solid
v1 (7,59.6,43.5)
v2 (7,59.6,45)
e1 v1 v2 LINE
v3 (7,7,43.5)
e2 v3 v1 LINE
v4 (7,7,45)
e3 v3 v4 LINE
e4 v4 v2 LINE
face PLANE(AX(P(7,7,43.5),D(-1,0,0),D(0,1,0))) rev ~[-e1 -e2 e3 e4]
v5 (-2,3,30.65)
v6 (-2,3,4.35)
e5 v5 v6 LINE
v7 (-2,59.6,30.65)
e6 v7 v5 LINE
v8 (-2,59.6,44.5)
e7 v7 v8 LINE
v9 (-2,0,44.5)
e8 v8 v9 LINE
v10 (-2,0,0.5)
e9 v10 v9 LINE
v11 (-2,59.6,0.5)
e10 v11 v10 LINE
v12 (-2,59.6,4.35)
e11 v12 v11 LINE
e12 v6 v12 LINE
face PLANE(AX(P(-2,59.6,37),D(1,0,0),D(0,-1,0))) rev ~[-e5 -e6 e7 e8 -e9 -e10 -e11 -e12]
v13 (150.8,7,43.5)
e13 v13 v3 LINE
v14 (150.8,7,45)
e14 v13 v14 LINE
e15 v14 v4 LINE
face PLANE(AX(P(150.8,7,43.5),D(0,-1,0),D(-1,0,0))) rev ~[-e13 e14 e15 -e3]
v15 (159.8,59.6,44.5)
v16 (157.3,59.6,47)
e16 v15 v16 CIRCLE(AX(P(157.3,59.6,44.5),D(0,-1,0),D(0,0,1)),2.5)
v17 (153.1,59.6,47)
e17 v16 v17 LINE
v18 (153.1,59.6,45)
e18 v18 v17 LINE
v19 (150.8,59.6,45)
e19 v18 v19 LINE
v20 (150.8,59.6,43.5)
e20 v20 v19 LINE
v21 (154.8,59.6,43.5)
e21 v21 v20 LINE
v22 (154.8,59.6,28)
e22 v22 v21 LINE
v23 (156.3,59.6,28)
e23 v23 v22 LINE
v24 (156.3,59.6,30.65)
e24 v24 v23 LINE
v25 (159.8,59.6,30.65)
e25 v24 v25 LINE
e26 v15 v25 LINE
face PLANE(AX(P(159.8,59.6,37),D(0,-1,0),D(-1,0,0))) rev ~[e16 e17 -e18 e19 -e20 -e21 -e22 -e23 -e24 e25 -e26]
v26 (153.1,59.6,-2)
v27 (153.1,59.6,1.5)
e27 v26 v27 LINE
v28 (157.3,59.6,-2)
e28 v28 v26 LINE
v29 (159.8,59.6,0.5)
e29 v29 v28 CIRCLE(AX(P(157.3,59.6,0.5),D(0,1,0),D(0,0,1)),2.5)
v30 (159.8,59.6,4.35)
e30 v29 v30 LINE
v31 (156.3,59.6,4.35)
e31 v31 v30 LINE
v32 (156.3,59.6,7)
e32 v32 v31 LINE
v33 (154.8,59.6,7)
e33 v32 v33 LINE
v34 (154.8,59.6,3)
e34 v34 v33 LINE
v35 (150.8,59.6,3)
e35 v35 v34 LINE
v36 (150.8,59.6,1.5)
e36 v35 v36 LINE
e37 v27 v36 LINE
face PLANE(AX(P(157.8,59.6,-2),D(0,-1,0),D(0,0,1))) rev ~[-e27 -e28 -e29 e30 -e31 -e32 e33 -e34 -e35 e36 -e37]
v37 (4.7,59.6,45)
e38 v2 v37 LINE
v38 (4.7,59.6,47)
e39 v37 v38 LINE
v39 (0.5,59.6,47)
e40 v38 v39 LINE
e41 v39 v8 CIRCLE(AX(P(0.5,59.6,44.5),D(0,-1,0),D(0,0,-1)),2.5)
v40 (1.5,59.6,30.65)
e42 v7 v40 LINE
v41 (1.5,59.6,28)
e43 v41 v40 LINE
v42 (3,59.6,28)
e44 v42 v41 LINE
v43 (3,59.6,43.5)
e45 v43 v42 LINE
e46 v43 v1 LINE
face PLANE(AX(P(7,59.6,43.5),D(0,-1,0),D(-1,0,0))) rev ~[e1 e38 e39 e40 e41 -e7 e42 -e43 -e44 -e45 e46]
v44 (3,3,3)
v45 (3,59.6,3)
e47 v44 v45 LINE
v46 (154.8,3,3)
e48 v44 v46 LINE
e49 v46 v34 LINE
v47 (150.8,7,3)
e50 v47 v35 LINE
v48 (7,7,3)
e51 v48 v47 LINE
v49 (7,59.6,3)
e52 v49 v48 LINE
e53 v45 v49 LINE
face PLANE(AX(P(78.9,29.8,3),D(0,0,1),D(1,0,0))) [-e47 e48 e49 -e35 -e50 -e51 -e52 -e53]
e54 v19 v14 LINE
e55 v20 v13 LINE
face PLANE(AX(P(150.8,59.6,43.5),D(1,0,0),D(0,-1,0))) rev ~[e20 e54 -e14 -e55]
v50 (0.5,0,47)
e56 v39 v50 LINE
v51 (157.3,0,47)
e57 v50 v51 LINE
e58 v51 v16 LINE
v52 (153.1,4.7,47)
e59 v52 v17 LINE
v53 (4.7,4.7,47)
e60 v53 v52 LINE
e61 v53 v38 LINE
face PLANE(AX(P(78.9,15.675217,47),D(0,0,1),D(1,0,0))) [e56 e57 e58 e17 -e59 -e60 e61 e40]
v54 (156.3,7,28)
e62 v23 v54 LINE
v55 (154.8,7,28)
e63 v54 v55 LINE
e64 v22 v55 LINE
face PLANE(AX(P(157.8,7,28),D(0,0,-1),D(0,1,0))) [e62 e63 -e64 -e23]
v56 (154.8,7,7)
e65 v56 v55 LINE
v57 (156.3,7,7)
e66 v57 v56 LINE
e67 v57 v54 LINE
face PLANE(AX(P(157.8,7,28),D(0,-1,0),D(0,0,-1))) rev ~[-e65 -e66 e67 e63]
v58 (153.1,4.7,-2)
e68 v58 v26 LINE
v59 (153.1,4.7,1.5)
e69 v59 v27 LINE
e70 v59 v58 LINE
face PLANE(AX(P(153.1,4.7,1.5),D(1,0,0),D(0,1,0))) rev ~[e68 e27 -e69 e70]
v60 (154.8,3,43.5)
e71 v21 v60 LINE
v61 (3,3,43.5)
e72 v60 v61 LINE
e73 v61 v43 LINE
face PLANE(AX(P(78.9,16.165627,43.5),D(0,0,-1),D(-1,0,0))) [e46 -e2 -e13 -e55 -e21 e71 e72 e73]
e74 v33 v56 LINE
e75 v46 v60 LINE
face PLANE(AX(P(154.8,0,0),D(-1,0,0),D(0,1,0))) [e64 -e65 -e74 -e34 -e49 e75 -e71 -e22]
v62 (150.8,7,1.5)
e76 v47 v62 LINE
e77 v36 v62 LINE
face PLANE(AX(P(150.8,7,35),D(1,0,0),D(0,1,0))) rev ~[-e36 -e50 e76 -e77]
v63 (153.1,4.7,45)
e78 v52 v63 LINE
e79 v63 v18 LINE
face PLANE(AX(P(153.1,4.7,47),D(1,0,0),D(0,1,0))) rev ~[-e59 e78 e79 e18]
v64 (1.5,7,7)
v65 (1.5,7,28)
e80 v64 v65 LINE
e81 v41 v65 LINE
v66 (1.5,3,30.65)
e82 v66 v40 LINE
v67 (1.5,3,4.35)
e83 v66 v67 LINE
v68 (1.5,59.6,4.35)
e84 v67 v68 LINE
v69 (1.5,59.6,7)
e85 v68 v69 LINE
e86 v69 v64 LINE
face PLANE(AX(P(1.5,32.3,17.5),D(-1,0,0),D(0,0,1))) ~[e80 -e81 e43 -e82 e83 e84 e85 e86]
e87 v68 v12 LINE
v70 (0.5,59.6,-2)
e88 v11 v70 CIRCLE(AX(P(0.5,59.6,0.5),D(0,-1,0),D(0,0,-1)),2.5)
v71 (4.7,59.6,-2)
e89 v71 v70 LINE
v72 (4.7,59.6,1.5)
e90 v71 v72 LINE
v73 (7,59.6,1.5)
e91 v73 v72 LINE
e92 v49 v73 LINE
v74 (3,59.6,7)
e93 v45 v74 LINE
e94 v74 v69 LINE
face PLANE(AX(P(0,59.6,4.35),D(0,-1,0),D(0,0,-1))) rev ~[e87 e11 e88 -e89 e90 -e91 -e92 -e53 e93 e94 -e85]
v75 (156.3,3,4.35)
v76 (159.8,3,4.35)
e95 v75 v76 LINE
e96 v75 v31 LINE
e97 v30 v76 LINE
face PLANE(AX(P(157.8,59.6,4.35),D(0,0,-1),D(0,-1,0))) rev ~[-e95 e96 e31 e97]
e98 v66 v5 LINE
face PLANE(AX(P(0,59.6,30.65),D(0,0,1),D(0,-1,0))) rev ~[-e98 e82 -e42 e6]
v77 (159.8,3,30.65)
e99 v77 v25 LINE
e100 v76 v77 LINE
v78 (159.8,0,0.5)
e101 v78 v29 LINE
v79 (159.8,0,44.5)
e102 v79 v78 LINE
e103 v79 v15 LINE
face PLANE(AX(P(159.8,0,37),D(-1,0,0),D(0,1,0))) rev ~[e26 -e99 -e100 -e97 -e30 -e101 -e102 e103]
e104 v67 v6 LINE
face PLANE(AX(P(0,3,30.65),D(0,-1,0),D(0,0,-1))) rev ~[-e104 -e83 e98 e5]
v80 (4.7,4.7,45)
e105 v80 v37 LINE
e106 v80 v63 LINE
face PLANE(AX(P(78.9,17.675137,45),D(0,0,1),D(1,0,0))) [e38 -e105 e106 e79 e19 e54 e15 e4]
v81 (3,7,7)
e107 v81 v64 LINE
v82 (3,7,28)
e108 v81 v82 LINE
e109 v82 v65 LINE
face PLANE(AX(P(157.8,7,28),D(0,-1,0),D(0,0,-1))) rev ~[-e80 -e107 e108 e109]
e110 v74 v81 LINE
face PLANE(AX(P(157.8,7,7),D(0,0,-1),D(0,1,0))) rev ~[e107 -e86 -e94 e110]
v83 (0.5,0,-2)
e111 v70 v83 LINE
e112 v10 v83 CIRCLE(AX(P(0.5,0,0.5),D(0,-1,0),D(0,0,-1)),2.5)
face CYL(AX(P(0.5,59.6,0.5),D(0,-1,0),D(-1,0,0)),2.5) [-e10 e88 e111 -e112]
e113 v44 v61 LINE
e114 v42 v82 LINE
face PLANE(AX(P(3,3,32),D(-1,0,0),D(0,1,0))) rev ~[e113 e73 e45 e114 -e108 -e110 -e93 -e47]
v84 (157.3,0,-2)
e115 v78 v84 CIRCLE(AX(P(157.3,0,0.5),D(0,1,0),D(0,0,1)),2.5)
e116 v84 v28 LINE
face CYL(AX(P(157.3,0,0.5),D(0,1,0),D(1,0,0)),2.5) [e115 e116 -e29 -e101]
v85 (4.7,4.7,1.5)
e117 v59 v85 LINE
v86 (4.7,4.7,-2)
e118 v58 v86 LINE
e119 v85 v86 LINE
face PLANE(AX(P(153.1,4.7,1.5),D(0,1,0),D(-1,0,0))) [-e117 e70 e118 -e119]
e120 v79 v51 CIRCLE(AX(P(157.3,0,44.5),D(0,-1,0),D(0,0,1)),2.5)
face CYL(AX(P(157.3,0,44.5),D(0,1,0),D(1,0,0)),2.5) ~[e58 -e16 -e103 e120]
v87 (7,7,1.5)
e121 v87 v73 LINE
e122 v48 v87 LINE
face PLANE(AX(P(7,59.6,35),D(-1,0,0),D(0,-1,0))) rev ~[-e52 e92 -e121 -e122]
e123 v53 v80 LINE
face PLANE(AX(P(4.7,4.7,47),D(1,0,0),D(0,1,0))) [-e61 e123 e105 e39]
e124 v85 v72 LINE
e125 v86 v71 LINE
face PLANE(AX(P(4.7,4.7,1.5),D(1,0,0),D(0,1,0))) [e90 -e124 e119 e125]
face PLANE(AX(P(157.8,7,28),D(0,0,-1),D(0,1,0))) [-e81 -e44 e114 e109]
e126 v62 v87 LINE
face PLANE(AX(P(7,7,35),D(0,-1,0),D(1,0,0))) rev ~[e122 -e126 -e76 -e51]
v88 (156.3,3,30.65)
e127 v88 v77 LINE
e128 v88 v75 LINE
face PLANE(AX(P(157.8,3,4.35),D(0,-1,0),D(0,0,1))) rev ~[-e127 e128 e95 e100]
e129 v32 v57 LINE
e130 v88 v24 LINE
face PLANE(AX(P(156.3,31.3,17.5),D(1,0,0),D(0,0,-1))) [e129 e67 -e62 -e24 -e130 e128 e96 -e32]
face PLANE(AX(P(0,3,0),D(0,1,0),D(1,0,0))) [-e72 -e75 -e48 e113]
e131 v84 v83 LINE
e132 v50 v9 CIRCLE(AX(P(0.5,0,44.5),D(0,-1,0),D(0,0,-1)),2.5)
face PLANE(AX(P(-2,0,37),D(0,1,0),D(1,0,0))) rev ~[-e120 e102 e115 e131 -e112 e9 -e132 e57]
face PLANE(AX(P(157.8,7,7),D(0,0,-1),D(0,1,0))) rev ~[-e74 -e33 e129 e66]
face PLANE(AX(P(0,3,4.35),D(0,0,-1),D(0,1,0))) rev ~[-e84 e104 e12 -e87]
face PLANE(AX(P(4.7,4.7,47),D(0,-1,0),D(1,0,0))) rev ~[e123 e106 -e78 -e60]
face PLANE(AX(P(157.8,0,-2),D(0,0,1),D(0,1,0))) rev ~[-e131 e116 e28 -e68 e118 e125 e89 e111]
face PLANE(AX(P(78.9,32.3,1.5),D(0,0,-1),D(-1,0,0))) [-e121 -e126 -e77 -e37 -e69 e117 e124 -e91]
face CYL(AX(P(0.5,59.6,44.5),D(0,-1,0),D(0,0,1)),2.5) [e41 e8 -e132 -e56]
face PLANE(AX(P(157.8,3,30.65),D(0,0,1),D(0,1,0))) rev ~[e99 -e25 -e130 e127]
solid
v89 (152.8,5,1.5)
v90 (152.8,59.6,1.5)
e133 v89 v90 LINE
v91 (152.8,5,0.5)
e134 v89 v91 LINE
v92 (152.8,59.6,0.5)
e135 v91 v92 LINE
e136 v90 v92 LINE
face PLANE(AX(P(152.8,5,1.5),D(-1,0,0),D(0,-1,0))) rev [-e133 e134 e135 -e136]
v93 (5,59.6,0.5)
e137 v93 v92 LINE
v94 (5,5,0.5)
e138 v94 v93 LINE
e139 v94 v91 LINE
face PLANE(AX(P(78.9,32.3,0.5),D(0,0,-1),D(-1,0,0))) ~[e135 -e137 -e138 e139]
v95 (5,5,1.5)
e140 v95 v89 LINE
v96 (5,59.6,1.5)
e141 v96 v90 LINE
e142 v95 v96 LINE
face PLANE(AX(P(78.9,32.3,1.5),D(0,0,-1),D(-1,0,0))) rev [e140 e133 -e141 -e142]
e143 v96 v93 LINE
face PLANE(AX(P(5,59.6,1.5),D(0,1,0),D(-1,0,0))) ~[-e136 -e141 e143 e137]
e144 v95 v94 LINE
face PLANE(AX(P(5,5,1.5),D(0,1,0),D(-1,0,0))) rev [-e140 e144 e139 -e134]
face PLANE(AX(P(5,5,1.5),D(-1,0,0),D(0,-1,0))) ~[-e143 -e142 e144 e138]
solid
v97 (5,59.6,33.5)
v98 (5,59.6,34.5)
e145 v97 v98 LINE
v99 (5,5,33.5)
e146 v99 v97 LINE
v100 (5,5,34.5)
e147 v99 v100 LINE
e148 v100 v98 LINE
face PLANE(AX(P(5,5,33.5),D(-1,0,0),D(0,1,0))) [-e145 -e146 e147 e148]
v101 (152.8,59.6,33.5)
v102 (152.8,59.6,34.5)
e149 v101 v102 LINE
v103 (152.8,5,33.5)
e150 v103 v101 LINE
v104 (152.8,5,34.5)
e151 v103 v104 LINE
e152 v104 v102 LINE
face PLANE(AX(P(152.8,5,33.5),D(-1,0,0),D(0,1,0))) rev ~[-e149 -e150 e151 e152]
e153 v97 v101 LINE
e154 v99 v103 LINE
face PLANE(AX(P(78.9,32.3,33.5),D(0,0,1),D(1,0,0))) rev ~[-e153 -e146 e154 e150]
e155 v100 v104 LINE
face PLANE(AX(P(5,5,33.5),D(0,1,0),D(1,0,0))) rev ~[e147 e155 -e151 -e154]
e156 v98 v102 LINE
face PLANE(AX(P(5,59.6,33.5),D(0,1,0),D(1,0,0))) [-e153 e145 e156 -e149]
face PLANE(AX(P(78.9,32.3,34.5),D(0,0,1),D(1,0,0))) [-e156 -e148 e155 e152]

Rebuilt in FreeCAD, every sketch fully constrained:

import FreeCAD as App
import Part
import Sketcher
from FreeCAD import Vector
Q = App.Units.Quantity


def edges_at(feature, points):
    """Names of the edges that pass closest to the given points."""
    edges = feature.Shape.Edges
    near = lambda p: min(range(len(edges)), key=lambda i: edges[i].distToShape(Part.Vertex(*p))[0])
    return sorted({f"Edge{near(p) + 1}" for p in points})


def faces_at(feature, points):
    """Names of the faces that lie closest to the given points."""
    faces = feature.Shape.Faces
    near = lambda p: min(range(len(faces)), key=lambda i: faces[i].distToShape(Part.Vertex(*p))[0])
    return sorted({f"Face{near(p) + 1}" for p in points})


def add_polygon(sketch, points):
    """Adds a closed chain of lines whose ends are joined by coincident constraints."""
    first, n = sketch.GeometryCount, len(points)
    for a, b in zip(points, points[1:] + points[:1]):
        sketch.addGeometry(Part.LineSegment(App.Vector(*a, 0), App.Vector(*b, 0)), False)
    for i in range(n):
        sketch.addConstraint(Sketcher.Constraint("Coincident", first + i, 2, first + (i + 1) % n, 1))

doc = App.newDocument("Part")
body = doc.addObject("PartDesign::Body", "Body")

sketch1 = body.newObject("Sketcher::SketchObject", "Sketch")
sketch1.AttachmentSupport = (doc.getObject("XY_Plane"), [""])
sketch1.MapMode = "FlatFace"
add_polygon(sketch1, [(0, 60), (0, 0), (158, 0), (158, 60)])
sketch1.addConstraint([
    Sketcher.Constraint("Vertical", 0),
    Sketcher.Constraint("Horizontal", 1),
    Sketcher.Constraint("Vertical", 2),
    Sketcher.Constraint("Horizontal", 3),
    Sketcher.Constraint("Coincident", 0, 2, -1, 1),
    Sketcher.Constraint("DistanceX", 1, 1, 1, 2, Q("157.8 mm")),
    Sketcher.Constraint("DistanceY", 0, 2, 0, 1, Q("59.6 mm")),
])
pad1 = body.newObject("PartDesign::Pad", "Pad")
pad1.Profile = sketch1
pad1.Length = 35
doc.recompute()

thickness = body.newObject("PartDesign::Thickness", "Thickness")
thickness.Base = (pad1, faces_at(pad1, [(78.9, 59.6, 17.5)]))
thickness.Value = 3
thickness.Reversed = True
thickness.Join = "Intersection"

sketch2 = body.newObject("Sketcher::SketchObject", "Sketch001")
sketch2.AttachmentSupport = (doc.getObject("XY_Plane"), [""])
sketch2.MapMode = "FlatFace"
sketch2.AttachmentOffset = App.Placement(Vector(0, 0, 35), App.Rotation())
add_polygon(sketch2, [(7, 7), (151, 7), (151, 60), (7, 60)])
sketch2.addConstraint([
    Sketcher.Constraint("Horizontal", 0),
    Sketcher.Constraint("Vertical", 1),
    Sketcher.Constraint("Horizontal", 2),
    Sketcher.Constraint("Vertical", 3),
    Sketcher.Constraint("DistanceX", 0, 1, 0, 2, Q("143.8 mm")),
    Sketcher.Constraint("DistanceY", 1, 1, 1, 2, Q("52.6 mm")),
    Sketcher.Constraint("DistanceY", -1, 1, 0, 2, Q("7 mm")),
    Sketcher.Constraint("DistanceX", -1, 1, 2, 2, Q("7 mm")),
])
pocket1 = body.newObject("PartDesign::Pocket", "Pocket")
pocket1.Profile = sketch2
pocket1.Type = "ThroughAll"

sketch3 = body.newObject("Sketcher::SketchObject", "Sketch002")
sketch3.AttachmentSupport = (doc.getObject("XY_Plane"), [""])
sketch3.MapMode = "FlatFace"
sketch3.AttachmentOffset = App.Placement(Vector(0, 0, 35), App.Rotation())
add_polygon(sketch3, [(5, 60), (5, 5), (153, 5), (153, 60)])
sketch3.addConstraint([
    Sketcher.Constraint("Vertical", 0),
    Sketcher.Constraint("Horizontal", 1),
    Sketcher.Constraint("Vertical", 2),
    Sketcher.Constraint("Horizontal", 3),
    Sketcher.Constraint("DistanceX", 1, 1, 1, 2, Q("147.8 mm")),
    Sketcher.Constraint("DistanceY", 0, 2, 0, 1, Q("54.6 mm")),
    Sketcher.Constraint("DistanceX", -1, 1, 0, 2, Q("5 mm")),
    Sketcher.Constraint("DistanceY", -1, 1, 0, 2, Q("5 mm")),
])
pocket2 = body.newObject("PartDesign::Pocket", "Pocket001")
pocket2.Profile = sketch3
pocket2.Length = 1.5
doc.recompute()

datumplane = body.newObject("PartDesign::Plane", "DatumPlane")
datumplane.AttachmentSupport = (doc.getObject("XY_Plane"), [""])
datumplane.MapMode = "FlatFace"
datumplane.AttachmentOffset = App.Placement(Vector(0, 0, 17.5), App.Rotation())
mirrored = body.newObject("PartDesign::Mirrored", "Mirrored")
mirrored.Originals = [pocket2]
mirrored.MirrorPlane = (datumplane, [""])
body.Tip = mirrored

sketch4 = body.newObject("Sketcher::SketchObject", "Sketch003")
sketch4.AttachmentSupport = (doc.getObject("YZ_Plane"), [""])
sketch4.MapMode = "FlatFace"
sketch4.AttachmentOffset = App.Placement(Vector(0, 0, 157.8), App.Rotation())
add_polygon(sketch4, [(60, 28), (7, 28), (7, 7), (60, 7)])
sketch4.addConstraint([
    Sketcher.Constraint("Horizontal", 0),
    Sketcher.Constraint("Vertical", 1),
    Sketcher.Constraint("Horizontal", 2),
    Sketcher.Constraint("Vertical", 3),
    Sketcher.Constraint("DistanceY", 1, 2, 1, 1, Q("21 mm")),
    Sketcher.Constraint("DistanceX", 0, 2, 0, 1, Q("52.6 mm")),
    Sketcher.Constraint("DistanceX", -1, 1, 0, 2, Q("7 mm")),
    Sketcher.Constraint("DistanceY", -1, 1, 0, 2, Q("28 mm")),
])
pocket3 = body.newObject("PartDesign::Pocket", "Pocket002")
pocket3.Profile = sketch4
pocket3.Type = "ThroughAll"

sketch5 = body.newObject("Sketcher::SketchObject", "Sketch004")
sketch5.AttachmentSupport = (doc.getObject("YZ_Plane"), [""])
sketch5.MapMode = "FlatFace"
sketch5.AttachmentOffset = App.Placement(Vector(0, 0, 157.8), App.Rotation())
add_polygon(sketch5, [(60, 30), (5, 30), (5, 5), (60, 5)])
sketch5.addConstraint([
    Sketcher.Constraint("Horizontal", 0),
    Sketcher.Constraint("Vertical", 1),
    Sketcher.Constraint("Horizontal", 2),
    Sketcher.Constraint("Vertical", 3),
    Sketcher.Constraint("DistanceY", 1, 2, 1, 1, Q("25 mm")),
    Sketcher.Constraint("DistanceX", 0, 2, 0, 1, Q("54.6 mm")),
    Sketcher.Constraint("DistanceX", -1, 1, 0, 2, Q("5 mm")),
    Sketcher.Constraint("DistanceY", -1, 1, 0, 2, Q("30 mm")),
])
pocket4 = body.newObject("PartDesign::Pocket", "Pocket003")
pocket4.Profile = sketch5
pocket4.Length = 1.5
doc.recompute()

datumplane2 = body.newObject("PartDesign::Plane", "DatumPlane001")
datumplane2.AttachmentSupport = (doc.getObject("YZ_Plane"), [""])
datumplane2.MapMode = "FlatFace"
datumplane2.AttachmentOffset = App.Placement(Vector(0, 0, 78.9), App.Rotation())
mirrored2 = body.newObject("PartDesign::Mirrored", "Mirrored001")
mirrored2.Originals = [pocket4]
mirrored2.MirrorPlane = (datumplane2, [""])
body.Tip = mirrored2

sketch6 = body.newObject("Sketcher::SketchObject", "Sketch005")
sketch6.AttachmentSupport = (doc.getObject("YZ_Plane"), [""])
sketch6.MapMode = "FlatFace"
sketch6.AttachmentOffset = App.Placement(Vector(0, 0, 157.8), App.Rotation())
add_polygon(sketch6, [(60, 30), (3, 30), (3, 5), (60, 5)])
sketch6.addConstraint([
    Sketcher.Constraint("Horizontal", 0),
    Sketcher.Constraint("Vertical", 1),
    Sketcher.Constraint("Horizontal", 2),
    Sketcher.Constraint("Vertical", 3),
    Sketcher.Constraint("DistanceX", 0, 2, 0, 1, Q("56.6 mm")),
    Sketcher.Constraint("DistanceY", 1, 2, 1, 1, Q("25.3 mm")),
    Sketcher.Constraint("DistanceX", -1, 1, 0, 2, Q("3 mm")),
    Sketcher.Constraint("DistanceY", -1, 1, 0, 2, Q("30.15 mm")),
])
pocket5 = body.newObject("PartDesign::Pocket", "Pocket004")
pocket5.Profile = sketch6
pocket5.Length = 1.5
doc.recompute()

datumplane3 = body.newObject("PartDesign::Plane", "DatumPlane002")
datumplane3.AttachmentSupport = (doc.getObject("YZ_Plane"), [""])
datumplane3.MapMode = "FlatFace"
datumplane3.AttachmentOffset = App.Placement(Vector(0, 0, 78.9), App.Rotation())
mirrored3 = body.newObject("PartDesign::Mirrored", "Mirrored002")
mirrored3.Originals = [pocket5]
mirrored3.MirrorPlane = (datumplane3, [""])
body.Tip = mirrored3

sketch7 = body.newObject("Sketcher::SketchObject", "Sketch006")
sketch7.AttachmentSupport = (doc.getObject("YZ_Plane"), [""])
sketch7.MapMode = "FlatFace"
sketch7.AttachmentOffset = App.Placement(Vector(0, 0, 157.8), App.Rotation())
add_polygon(sketch7, [(60, 31), (3, 31), (3, 4), (60, 4)])
sketch7.addConstraint([
    Sketcher.Constraint("Horizontal", 0),
    Sketcher.Constraint("Vertical", 1),
    Sketcher.Constraint("Horizontal", 2),
    Sketcher.Constraint("Vertical", 3),
    Sketcher.Constraint("DistanceX", 0, 2, 0, 1, Q("56.6 mm")),
    Sketcher.Constraint("DistanceY", 1, 2, 1, 1, Q("26.3 mm")),
    Sketcher.Constraint("DistanceX", -1, 1, 0, 2, Q("3 mm")),
    Sketcher.Constraint("DistanceY", -1, 1, 0, 2, Q("30.65 mm")),
])
pocket6 = body.newObject("PartDesign::Pocket", "Pocket005")
pocket6.Profile = sketch7
pocket6.Length = 1.5

sketch8 = body.newObject("Sketcher::SketchObject", "Sketch007")
sketch8.AttachmentSupport = (doc.getObject("YZ_Plane"), [""])
sketch8.MapMode = "FlatFace"
add_polygon(sketch8, [(60, 4), (3, 4), (3, 31), (60, 31)])
sketch8.addConstraint([
    Sketcher.Constraint("Horizontal", 0),
    Sketcher.Constraint("Vertical", 1),
    Sketcher.Constraint("Horizontal", 2),
    Sketcher.Constraint("Vertical", 3),
    Sketcher.Constraint("DistanceX", 0, 2, 0, 1, Q("56.6 mm")),
    Sketcher.Constraint("DistanceY", 1, 1, 1, 2, Q("26.3 mm")),
    Sketcher.Constraint("DistanceX", -1, 1, 0, 2, Q("3 mm")),
    Sketcher.Constraint("DistanceY", -1, 1, 0, 2, Q("4.35 mm")),
])
pocket7 = body.newObject("PartDesign::Pocket", "Pocket006")
pocket7.Profile = sketch8
pocket7.Length = 1.5
pocket7.Reversed = True

sketch9 = body.newObject("Sketcher::SketchObject", "Sketch008")
sketch9.AttachmentSupport = (doc.getObject("XY_Plane"), [""])
sketch9.MapMode = "FlatFace"
add_polygon(sketch9, [(0, 60), (5, 60), (5, 5), (153, 5), (153, 60), (158, 60), (158, 0), (0, 0)])
sketch9.addConstraint([
    Sketcher.Constraint("Horizontal", 0),
    Sketcher.Constraint("Vertical", 1),
    Sketcher.Constraint("Horizontal", 2),
    Sketcher.Constraint("Vertical", 3),
    Sketcher.Constraint("Horizontal", 4),
    Sketcher.Constraint("Vertical", 5),
    Sketcher.Constraint("Horizontal", 6),
    Sketcher.Constraint("Vertical", 7),
    Sketcher.Constraint("Coincident", 6, 2, -1, 1),
    Sketcher.Constraint("Horizontal", 0, 2, 3, 2),
    Sketcher.Constraint("Equal", 0, 4),
    Sketcher.Constraint("DistanceX", 0, 1, 0, 2, Q("5 mm")),
    Sketcher.Constraint("DistanceX", 2, 1, 2, 2, Q("147.8 mm")),
    Sketcher.Constraint("DistanceY", 1, 2, 1, 1, Q("54.6 mm")),
    Sketcher.Constraint("DistanceY", 5, 2, 5, 1, Q("59.6 mm")),
])
pad2 = body.newObject("PartDesign::Pad", "Pad001")
pad2.Profile = sketch9
pad2.Length = 2
pad2.Reversed = True

sketch10 = body.newObject("Sketcher::SketchObject", "Sketch009")
sketch10.AttachmentSupport = (doc.getObject("XY_Plane"), [""])
sketch10.MapMode = "FlatFace"
sketch10.AttachmentOffset = App.Placement(Vector(0, 0, 35), App.Rotation())
add_polygon(sketch10, [(153, 5), (5, 5), (5, 60), (0, 60), (0, 0), (158, 0), (158, 60), (153, 60)])
sketch10.addConstraint([
    Sketcher.Constraint("Horizontal", 0),
    Sketcher.Constraint("Vertical", 1),
    Sketcher.Constraint("Horizontal", 2),
    Sketcher.Constraint("Vertical", 3),
    Sketcher.Constraint("Horizontal", 4),
    Sketcher.Constraint("Vertical", 5),
    Sketcher.Constraint("Horizontal", 6),
    Sketcher.Constraint("Vertical", 7),
    Sketcher.Constraint("Coincident", 3, 2, -1, 1),
    Sketcher.Constraint("Horizontal", 2, 2, 5, 2),
    Sketcher.Constraint("Equal", 2, 6),
    Sketcher.Constraint("DistanceX", 2, 2, 2, 1, Q("5 mm")),
    Sketcher.Constraint("DistanceX", 0, 2, 0, 1, Q("147.8 mm")),
    Sketcher.Constraint("DistanceY", 1, 1, 1, 2, Q("54.6 mm")),
    Sketcher.Constraint("DistanceY", 3, 2, 3, 1, Q("59.6 mm")),
])
pad3 = body.newObject("PartDesign::Pad", "Pad002")
pad3.Profile = sketch10
pad3.Length = 2

sketch11 = body.newObject("Sketcher::SketchObject", "Sketch010")
sketch11.AttachmentSupport = (doc.getObject("YZ_Plane"), [""])
sketch11.MapMode = "FlatFace"
add_polygon(sketch11, [(60, 31), (3, 31), (3, 4), (60, 4), (60, -2), (0, -2), (0, 37), (60, 37)])
sketch11.addConstraint([
    Sketcher.Constraint("Horizontal", 0),
    Sketcher.Constraint("Vertical", 1),
    Sketcher.Constraint("Horizontal", 2),
    Sketcher.Constraint("Vertical", 3),
    Sketcher.Constraint("Horizontal", 4),
    Sketcher.Constraint("Vertical", 5),
    Sketcher.Constraint("Horizontal", 6),
    Sketcher.Constraint("Vertical", 7),
    Sketcher.Constraint("PointOnObject", 4, 2, -2),
    Sketcher.Constraint("Vertical", 3, 2, 6, 2),
    Sketcher.Constraint("Equal", 3, 7),
    Sketcher.Constraint("DistanceY", 5, 1, 5, 2, Q("39 mm")),
    Sketcher.Constraint("DistanceX", 0, 2, 0, 1, Q("56.6 mm")),
    Sketcher.Constraint("DistanceX", 4, 2, 4, 1, Q("59.6 mm")),
    Sketcher.Constraint("DistanceY", 1, 2, 1, 1, Q("26.3 mm")),
    Sketcher.Constraint("DistanceY", 3, 2, -1, 1, Q("2 mm")),
])
pad4 = body.newObject("PartDesign::Pad", "Pad003")
pad4.Profile = sketch11
pad4.Length = 2
pad4.Reversed = True

sketch12 = body.newObject("Sketcher::SketchObject", "Sketch011")
sketch12.AttachmentSupport = (doc.getObject("YZ_Plane"), [""])
sketch12.MapMode = "FlatFace"
sketch12.AttachmentOffset = App.Placement(Vector(0, 0, 157.8), App.Rotation())
add_polygon(sketch12, [(60, -2), (60, 4), (3, 4), (3, 31), (60, 31), (60, 37), (0, 37), (0, -2)])
sketch12.addConstraint([
    Sketcher.Constraint("Vertical", 0),
    Sketcher.Constraint("Horizontal", 1),
    Sketcher.Constraint("Vertical", 2),
    Sketcher.Constraint("Horizontal", 3),
    Sketcher.Constraint("Vertical", 4),
    Sketcher.Constraint("Horizontal", 5),
    Sketcher.Constraint("Vertical", 6),
    Sketcher.Constraint("Horizontal", 7),
    Sketcher.Constraint("PointOnObject", 5, 2, -2),
    Sketcher.Constraint("Vertical", 0, 2, 3, 2),
    Sketcher.Constraint("Equal", 0, 4),
    Sketcher.Constraint("DistanceY", 6, 2, 6, 1, Q("39 mm")),
    Sketcher.Constraint("DistanceX", 1, 2, 1, 1, Q("56.6 mm")),
    Sketcher.Constraint("DistanceX", 5, 2, 5, 1, Q("59.6 mm")),
    Sketcher.Constraint("DistanceY", 2, 1, 2, 2, Q("26.3 mm")),
    Sketcher.Constraint("DistanceY", -1, 1, 4, 2, Q("37 mm")),
])
pad5 = body.newObject("PartDesign::Pad", "Pad004")
pad5.Profile = sketch12
pad5.Length = 2

sketch13 = body.newObject("Sketcher::SketchObject", "Sketch012")
sketch13.AttachmentSupport = (doc.getObject("XY_Plane"), [""])
sketch13.MapMode = "FlatFace"
sketch13.AttachmentOffset = App.Placement(Vector(0, 0, 37), App.Rotation())
add_polygon(sketch13, [(153, 60), (153, 5), (5, 5), (5, 60), (-2, 60), (-2, 0), (160, 0), (160, 60)])
sketch13.addConstraint([
    Sketcher.Constraint("Vertical", 0),
    Sketcher.Constraint("Horizontal", 1),
    Sketcher.Constraint("Vertical", 2),
    Sketcher.Constraint("Horizontal", 3),
    Sketcher.Constraint("Vertical", 4),
    Sketcher.Constraint("Horizontal", 5),
    Sketcher.Constraint("Vertical", 6),
    Sketcher.Constraint("Horizontal", 7),
    Sketcher.Constraint("PointOnObject", 4, 2, -1),
    Sketcher.Constraint("Horizontal", 3, 2, 6, 2),
    Sketcher.Constraint("Equal", 3, 7),
    Sketcher.Constraint("DistanceX", 3, 2, 3, 1, Q("7 mm")),
    Sketcher.Constraint("DistanceX", 1, 2, 1, 1, Q("147.8 mm")),
    Sketcher.Constraint("DistanceY", 0, 2, 0, 1, Q("54.6 mm")),
    Sketcher.Constraint("DistanceY", 4, 2, 4, 1, Q("59.6 mm")),
    Sketcher.Constraint("DistanceX", -1, 1, 1, 2, Q("5 mm")),
])
pad6 = body.newObject("PartDesign::Pad", "Pad005")
pad6.Profile = sketch13
pad6.Length = 10

sketch14 = body.newObject("Sketcher::SketchObject", "Sketch013")
sketch14.AttachmentSupport = (doc.getObject("XY_Plane"), [""])
sketch14.MapMode = "FlatFace"
sketch14.AttachmentOffset = App.Placement(Vector(0, 0, 32), App.Rotation())
add_polygon(sketch14, [(150.8, 7), (7, 7), (7, 59.6), (5, 59.6), (5, 5), (152.8, 5), (152.8, 59.6), (150.8, 59.6)])
sketch14.addConstraint([
    Sketcher.Constraint("Horizontal", 0),
    Sketcher.Constraint("Vertical", 1),
    Sketcher.Constraint("Horizontal", 2),
    Sketcher.Constraint("Vertical", 3),
    Sketcher.Constraint("Horizontal", 4),
    Sketcher.Constraint("Vertical", 5),
    Sketcher.Constraint("Horizontal", 6),
    Sketcher.Constraint("Vertical", 7),
    Sketcher.Constraint("Horizontal", 2, 2, 5, 2),
    Sketcher.Constraint("Equal", 2, 6),
    Sketcher.Constraint("DistanceX", 2, 2, 2, 1, Q("2 mm")),
    Sketcher.Constraint("DistanceX", 0, 2, 0, 1, Q("143.8 mm")),
    Sketcher.Constraint("DistanceY", 1, 1, 1, 2, Q("52.6 mm")),
    Sketcher.Constraint("DistanceY", 3, 2, 3, 1, Q("54.6 mm")),
    Sketcher.Constraint("DistanceX", -1, 1, 0, 2, Q("7 mm")),
    Sketcher.Constraint("DistanceY", -1, 1, 0, 2, Q("7 mm")),
])
pocket8 = body.newObject("PartDesign::Pocket", "Pocket007")
pocket8.Profile = sketch14
pocket8.Length = 2.5
pocket8.Reversed = True

sketch15 = body.newObject("Sketcher::SketchObject", "Sketch014")
sketch15.AttachmentSupport = (doc.getObject("XY_Plane"), [""])
sketch15.MapMode = "FlatFace"
sketch15.AttachmentOffset = App.Placement(Vector(0, 0, 43.5), App.Rotation())
add_polygon(sketch15, [(150.8, 7), (7, 7), (7, 59.6), (5, 59.6), (5, 5), (152.8, 5), (152.8, 59.6), (150.8, 59.6)])
sketch15.addConstraint([
    Sketcher.Constraint("Horizontal", 0),
    Sketcher.Constraint("Vertical", 1),
    Sketcher.Constraint("Horizontal", 2),
    Sketcher.Constraint("Vertical", 3),
    Sketcher.Constraint("Horizontal", 4),
    Sketcher.Constraint("Vertical", 5),
    Sketcher.Constraint("Horizontal", 6),
    Sketcher.Constraint("Vertical", 7),
    Sketcher.Constraint("Horizontal", 2, 2, 5, 2),
    Sketcher.Constraint("Equal", 2, 6),
    Sketcher.Constraint("DistanceX", 2, 2, 2, 1, Q("2 mm")),
    Sketcher.Constraint("DistanceX", 0, 2, 0, 1, Q("143.8 mm")),
    Sketcher.Constraint("DistanceY", 1, 1, 1, 2, Q("52.6 mm")),
    Sketcher.Constraint("DistanceY", 3, 2, 3, 1, Q("54.6 mm")),
    Sketcher.Constraint("DistanceX", -1, 1, 0, 2, Q("7 mm")),
    Sketcher.Constraint("DistanceY", -1, 1, 0, 2, Q("7 mm")),
])
pad7 = body.newObject("PartDesign::Pad", "Pad006")
pad7.Profile = sketch15
pad7.Length = 1.5

sketch16 = body.newObject("Sketcher::SketchObject", "Sketch015")
sketch16.AttachmentSupport = (doc.getObject("XY_Plane"), [""])
sketch16.MapMode = "FlatFace"
sketch16.AttachmentOffset = App.Placement(Vector(0, 0, 32), App.Rotation())
add_polygon(sketch16, [(152.8, 5), (152.8, 59.6), (154.8, 59.6), (154.8, 3), (3, 3), (3, 59.6), (5, 59.6), (5, 5)])
sketch16.addConstraint([
    Sketcher.Constraint("Vertical", 0),
    Sketcher.Constraint("Horizontal", 1),
    Sketcher.Constraint("Vertical", 2),
    Sketcher.Constraint("Horizontal", 3),
    Sketcher.Constraint("Vertical", 4),
    Sketcher.Constraint("Horizontal", 5),
    Sketcher.Constraint("Vertical", 6),
    Sketcher.Constraint("Horizontal", 7),
    Sketcher.Constraint("Horizontal", 1, 2, 4, 2),
    Sketcher.Constraint("Equal", 1, 5),
    Sketcher.Constraint("DistanceX", 1, 1, 1, 2, Q("2 mm")),
    Sketcher.Constraint("DistanceX", 3, 2, 3, 1, Q("151.8 mm")),
    Sketcher.Constraint("DistanceY", 0, 1, 0, 2, Q("54.6 mm")),
    Sketcher.Constraint("DistanceY", 2, 2, 2, 1, Q("56.6 mm")),
    Sketcher.Constraint("DistanceY", -1, 1, 2, 2, Q("3 mm")),
    Sketcher.Constraint("DistanceX", -1, 1, 3, 2, Q("3 mm")),
])
pocket9 = body.newObject("PartDesign::Pocket", "Pocket008")
pocket9.Profile = sketch16
pocket9.Length = 11.5
pocket9.Reversed = True

sketch17 = body.newObject("Sketcher::SketchObject", "Sketch016")
sketch17.AttachmentSupport = (doc.getObject("XY_Plane"), [""])
sketch17.MapMode = "FlatFace"
sketch17.AttachmentOffset = App.Placement(Vector(0, 0, 1.5), App.Rotation())
add_polygon(sketch17, [(153, 60), (153, 5), (5, 5), (5, 60)])
sketch17.addConstraint([
    Sketcher.Constraint("Vertical", 0),
    Sketcher.Constraint("Horizontal", 1),
    Sketcher.Constraint("Vertical", 2),
    Sketcher.Constraint("Horizontal", 3),
    Sketcher.Constraint("DistanceX", 1, 2, 1, 1, Q("148.4 mm")),
    Sketcher.Constraint("DistanceY", 0, 2, 0, 1, Q("55.2 mm")),
    Sketcher.Constraint("DistanceX", -1, 1, 0, 2, Q("153.1 mm")),
    Sketcher.Constraint("DistanceY", -1, 1, 0, 2, Q("4.7 mm")),
])
pocket10 = body.newObject("PartDesign::Pocket", "Pocket009")
pocket10.Profile = sketch17
pocket10.Length = 3.5

sketch18 = body.newObject("Sketcher::SketchObject", "Sketch017")
sketch18.AttachmentSupport = (doc.getObject("XY_Plane"), [""])
sketch18.MapMode = "FlatFace"
sketch18.AttachmentOffset = App.Placement(Vector(0, 0, 47), App.Rotation())
add_polygon(sketch18, [(5, 60), (5, 5), (153, 5), (153, 60)])
sketch18.addConstraint([
    Sketcher.Constraint("Vertical", 0),
    Sketcher.Constraint("Horizontal", 1),
    Sketcher.Constraint("Vertical", 2),
    Sketcher.Constraint("Horizontal", 3),
    Sketcher.Constraint("DistanceX", 1, 1, 1, 2, Q("148.4 mm")),
    Sketcher.Constraint("DistanceY", 0, 2, 0, 1, Q("55.2 mm")),
    Sketcher.Constraint("DistanceX", -1, 1, 0, 2, Q("4.7 mm")),
    Sketcher.Constraint("DistanceY", -1, 1, 0, 2, Q("4.7 mm")),
])
pocket11 = body.newObject("PartDesign::Pocket", "Pocket010")
pocket11.Profile = sketch18
pocket11.Length = 2
doc.recompute()

fillet = body.newObject("PartDesign::Fillet", "Fillet")
fillet.Base = (pocket11, edges_at(pocket11, [
    (-2, 29.8, -2),
    (159.8, 29.8, -2),
    (-2, 29.8, 47),
    (159.8, 29.8, 47),
]))
fillet.Radius = 2.5
body2 = doc.addObject("PartDesign::Body", "Body001")

sketch19 = body2.newObject("Sketcher::SketchObject", "Sketch018")
sketch19.AttachmentSupport = (doc.getObject("XY_Plane001"), [""])
sketch19.MapMode = "FlatFace"
sketch19.AttachmentOffset = App.Placement(Vector(0, 0, 33.5), App.Rotation())
add_polygon(sketch19, [(5, 60), (5, 5), (153, 5), (153, 60)])
sketch19.addConstraint([
    Sketcher.Constraint("Vertical", 0),
    Sketcher.Constraint("Horizontal", 1),
    Sketcher.Constraint("Vertical", 2),
    Sketcher.Constraint("Horizontal", 3),
    Sketcher.Constraint("DistanceX", 1, 1, 1, 2, Q("147.8 mm")),
    Sketcher.Constraint("DistanceY", 0, 2, 0, 1, Q("54.6 mm")),
    Sketcher.Constraint("DistanceX", -1, 1, 0, 2, Q("5 mm")),
    Sketcher.Constraint("DistanceY", -1, 1, 0, 2, Q("5 mm")),
])
pad8 = body2.newObject("PartDesign::Pad", "Pad007")
pad8.Profile = sketch19
pad8.Length = 1
body3 = doc.addObject("PartDesign::Body", "Body002")
doc.recompute()

mirroring = doc.addObject("Part::Mirroring", "Mirroring")
mirroring.Source = body2
mirroring.Base = Vector(0, 0, 17.5)
mirroring.Normal = Vector(0, 0, 1)
body3.BaseFeature = mirroring
doc.recompute()
body4 = doc.addObject("PartDesign::Body", "Body003")

sketch20 = body4.newObject("Sketcher::SketchObject", "Sketch019")
sketch20.AttachmentSupport = (doc.getObject("YZ_Plane003"), [""])
sketch20.MapMode = "FlatFace"
sketch20.AttachmentOffset = App.Placement(Vector(0, 0, 156.3), App.Rotation())
add_polygon(sketch20, [(60, 30), (5, 30), (5, 5), (60, 5)])
sketch20.addConstraint([
    Sketcher.Constraint("Horizontal", 0),
    Sketcher.Constraint("Vertical", 1),
    Sketcher.Constraint("Horizontal", 2),
    Sketcher.Constraint("Vertical", 3),
    Sketcher.Constraint("DistanceY", 1, 2, 1, 1, Q("25 mm")),
    Sketcher.Constraint("DistanceX", 0, 2, 0, 1, Q("54.6 mm")),
    Sketcher.Constraint("DistanceX", -1, 1, 0, 2, Q("5 mm")),
    Sketcher.Constraint("DistanceY", -1, 1, 0, 2, Q("30 mm")),
])
pad9 = body4.newObject("PartDesign::Pad", "Pad008")
pad9.Profile = sketch20
pad9.Length = 1
body5 = doc.addObject("PartDesign::Body", "Body004")
doc.recompute()

mirroring2 = doc.addObject("Part::Mirroring", "Mirroring001")
mirroring2.Source = body4
mirroring2.Base = Vector(78.9, 0, 0)
mirroring2.Normal = Vector(1, 0, 0)
body5.BaseFeature = mirroring2
doc.recompute()
body4.Visibility = False
body5.Visibility = False
mirroring.Visibility = False
mirroring2.Visibility = False

doc.recompute()
